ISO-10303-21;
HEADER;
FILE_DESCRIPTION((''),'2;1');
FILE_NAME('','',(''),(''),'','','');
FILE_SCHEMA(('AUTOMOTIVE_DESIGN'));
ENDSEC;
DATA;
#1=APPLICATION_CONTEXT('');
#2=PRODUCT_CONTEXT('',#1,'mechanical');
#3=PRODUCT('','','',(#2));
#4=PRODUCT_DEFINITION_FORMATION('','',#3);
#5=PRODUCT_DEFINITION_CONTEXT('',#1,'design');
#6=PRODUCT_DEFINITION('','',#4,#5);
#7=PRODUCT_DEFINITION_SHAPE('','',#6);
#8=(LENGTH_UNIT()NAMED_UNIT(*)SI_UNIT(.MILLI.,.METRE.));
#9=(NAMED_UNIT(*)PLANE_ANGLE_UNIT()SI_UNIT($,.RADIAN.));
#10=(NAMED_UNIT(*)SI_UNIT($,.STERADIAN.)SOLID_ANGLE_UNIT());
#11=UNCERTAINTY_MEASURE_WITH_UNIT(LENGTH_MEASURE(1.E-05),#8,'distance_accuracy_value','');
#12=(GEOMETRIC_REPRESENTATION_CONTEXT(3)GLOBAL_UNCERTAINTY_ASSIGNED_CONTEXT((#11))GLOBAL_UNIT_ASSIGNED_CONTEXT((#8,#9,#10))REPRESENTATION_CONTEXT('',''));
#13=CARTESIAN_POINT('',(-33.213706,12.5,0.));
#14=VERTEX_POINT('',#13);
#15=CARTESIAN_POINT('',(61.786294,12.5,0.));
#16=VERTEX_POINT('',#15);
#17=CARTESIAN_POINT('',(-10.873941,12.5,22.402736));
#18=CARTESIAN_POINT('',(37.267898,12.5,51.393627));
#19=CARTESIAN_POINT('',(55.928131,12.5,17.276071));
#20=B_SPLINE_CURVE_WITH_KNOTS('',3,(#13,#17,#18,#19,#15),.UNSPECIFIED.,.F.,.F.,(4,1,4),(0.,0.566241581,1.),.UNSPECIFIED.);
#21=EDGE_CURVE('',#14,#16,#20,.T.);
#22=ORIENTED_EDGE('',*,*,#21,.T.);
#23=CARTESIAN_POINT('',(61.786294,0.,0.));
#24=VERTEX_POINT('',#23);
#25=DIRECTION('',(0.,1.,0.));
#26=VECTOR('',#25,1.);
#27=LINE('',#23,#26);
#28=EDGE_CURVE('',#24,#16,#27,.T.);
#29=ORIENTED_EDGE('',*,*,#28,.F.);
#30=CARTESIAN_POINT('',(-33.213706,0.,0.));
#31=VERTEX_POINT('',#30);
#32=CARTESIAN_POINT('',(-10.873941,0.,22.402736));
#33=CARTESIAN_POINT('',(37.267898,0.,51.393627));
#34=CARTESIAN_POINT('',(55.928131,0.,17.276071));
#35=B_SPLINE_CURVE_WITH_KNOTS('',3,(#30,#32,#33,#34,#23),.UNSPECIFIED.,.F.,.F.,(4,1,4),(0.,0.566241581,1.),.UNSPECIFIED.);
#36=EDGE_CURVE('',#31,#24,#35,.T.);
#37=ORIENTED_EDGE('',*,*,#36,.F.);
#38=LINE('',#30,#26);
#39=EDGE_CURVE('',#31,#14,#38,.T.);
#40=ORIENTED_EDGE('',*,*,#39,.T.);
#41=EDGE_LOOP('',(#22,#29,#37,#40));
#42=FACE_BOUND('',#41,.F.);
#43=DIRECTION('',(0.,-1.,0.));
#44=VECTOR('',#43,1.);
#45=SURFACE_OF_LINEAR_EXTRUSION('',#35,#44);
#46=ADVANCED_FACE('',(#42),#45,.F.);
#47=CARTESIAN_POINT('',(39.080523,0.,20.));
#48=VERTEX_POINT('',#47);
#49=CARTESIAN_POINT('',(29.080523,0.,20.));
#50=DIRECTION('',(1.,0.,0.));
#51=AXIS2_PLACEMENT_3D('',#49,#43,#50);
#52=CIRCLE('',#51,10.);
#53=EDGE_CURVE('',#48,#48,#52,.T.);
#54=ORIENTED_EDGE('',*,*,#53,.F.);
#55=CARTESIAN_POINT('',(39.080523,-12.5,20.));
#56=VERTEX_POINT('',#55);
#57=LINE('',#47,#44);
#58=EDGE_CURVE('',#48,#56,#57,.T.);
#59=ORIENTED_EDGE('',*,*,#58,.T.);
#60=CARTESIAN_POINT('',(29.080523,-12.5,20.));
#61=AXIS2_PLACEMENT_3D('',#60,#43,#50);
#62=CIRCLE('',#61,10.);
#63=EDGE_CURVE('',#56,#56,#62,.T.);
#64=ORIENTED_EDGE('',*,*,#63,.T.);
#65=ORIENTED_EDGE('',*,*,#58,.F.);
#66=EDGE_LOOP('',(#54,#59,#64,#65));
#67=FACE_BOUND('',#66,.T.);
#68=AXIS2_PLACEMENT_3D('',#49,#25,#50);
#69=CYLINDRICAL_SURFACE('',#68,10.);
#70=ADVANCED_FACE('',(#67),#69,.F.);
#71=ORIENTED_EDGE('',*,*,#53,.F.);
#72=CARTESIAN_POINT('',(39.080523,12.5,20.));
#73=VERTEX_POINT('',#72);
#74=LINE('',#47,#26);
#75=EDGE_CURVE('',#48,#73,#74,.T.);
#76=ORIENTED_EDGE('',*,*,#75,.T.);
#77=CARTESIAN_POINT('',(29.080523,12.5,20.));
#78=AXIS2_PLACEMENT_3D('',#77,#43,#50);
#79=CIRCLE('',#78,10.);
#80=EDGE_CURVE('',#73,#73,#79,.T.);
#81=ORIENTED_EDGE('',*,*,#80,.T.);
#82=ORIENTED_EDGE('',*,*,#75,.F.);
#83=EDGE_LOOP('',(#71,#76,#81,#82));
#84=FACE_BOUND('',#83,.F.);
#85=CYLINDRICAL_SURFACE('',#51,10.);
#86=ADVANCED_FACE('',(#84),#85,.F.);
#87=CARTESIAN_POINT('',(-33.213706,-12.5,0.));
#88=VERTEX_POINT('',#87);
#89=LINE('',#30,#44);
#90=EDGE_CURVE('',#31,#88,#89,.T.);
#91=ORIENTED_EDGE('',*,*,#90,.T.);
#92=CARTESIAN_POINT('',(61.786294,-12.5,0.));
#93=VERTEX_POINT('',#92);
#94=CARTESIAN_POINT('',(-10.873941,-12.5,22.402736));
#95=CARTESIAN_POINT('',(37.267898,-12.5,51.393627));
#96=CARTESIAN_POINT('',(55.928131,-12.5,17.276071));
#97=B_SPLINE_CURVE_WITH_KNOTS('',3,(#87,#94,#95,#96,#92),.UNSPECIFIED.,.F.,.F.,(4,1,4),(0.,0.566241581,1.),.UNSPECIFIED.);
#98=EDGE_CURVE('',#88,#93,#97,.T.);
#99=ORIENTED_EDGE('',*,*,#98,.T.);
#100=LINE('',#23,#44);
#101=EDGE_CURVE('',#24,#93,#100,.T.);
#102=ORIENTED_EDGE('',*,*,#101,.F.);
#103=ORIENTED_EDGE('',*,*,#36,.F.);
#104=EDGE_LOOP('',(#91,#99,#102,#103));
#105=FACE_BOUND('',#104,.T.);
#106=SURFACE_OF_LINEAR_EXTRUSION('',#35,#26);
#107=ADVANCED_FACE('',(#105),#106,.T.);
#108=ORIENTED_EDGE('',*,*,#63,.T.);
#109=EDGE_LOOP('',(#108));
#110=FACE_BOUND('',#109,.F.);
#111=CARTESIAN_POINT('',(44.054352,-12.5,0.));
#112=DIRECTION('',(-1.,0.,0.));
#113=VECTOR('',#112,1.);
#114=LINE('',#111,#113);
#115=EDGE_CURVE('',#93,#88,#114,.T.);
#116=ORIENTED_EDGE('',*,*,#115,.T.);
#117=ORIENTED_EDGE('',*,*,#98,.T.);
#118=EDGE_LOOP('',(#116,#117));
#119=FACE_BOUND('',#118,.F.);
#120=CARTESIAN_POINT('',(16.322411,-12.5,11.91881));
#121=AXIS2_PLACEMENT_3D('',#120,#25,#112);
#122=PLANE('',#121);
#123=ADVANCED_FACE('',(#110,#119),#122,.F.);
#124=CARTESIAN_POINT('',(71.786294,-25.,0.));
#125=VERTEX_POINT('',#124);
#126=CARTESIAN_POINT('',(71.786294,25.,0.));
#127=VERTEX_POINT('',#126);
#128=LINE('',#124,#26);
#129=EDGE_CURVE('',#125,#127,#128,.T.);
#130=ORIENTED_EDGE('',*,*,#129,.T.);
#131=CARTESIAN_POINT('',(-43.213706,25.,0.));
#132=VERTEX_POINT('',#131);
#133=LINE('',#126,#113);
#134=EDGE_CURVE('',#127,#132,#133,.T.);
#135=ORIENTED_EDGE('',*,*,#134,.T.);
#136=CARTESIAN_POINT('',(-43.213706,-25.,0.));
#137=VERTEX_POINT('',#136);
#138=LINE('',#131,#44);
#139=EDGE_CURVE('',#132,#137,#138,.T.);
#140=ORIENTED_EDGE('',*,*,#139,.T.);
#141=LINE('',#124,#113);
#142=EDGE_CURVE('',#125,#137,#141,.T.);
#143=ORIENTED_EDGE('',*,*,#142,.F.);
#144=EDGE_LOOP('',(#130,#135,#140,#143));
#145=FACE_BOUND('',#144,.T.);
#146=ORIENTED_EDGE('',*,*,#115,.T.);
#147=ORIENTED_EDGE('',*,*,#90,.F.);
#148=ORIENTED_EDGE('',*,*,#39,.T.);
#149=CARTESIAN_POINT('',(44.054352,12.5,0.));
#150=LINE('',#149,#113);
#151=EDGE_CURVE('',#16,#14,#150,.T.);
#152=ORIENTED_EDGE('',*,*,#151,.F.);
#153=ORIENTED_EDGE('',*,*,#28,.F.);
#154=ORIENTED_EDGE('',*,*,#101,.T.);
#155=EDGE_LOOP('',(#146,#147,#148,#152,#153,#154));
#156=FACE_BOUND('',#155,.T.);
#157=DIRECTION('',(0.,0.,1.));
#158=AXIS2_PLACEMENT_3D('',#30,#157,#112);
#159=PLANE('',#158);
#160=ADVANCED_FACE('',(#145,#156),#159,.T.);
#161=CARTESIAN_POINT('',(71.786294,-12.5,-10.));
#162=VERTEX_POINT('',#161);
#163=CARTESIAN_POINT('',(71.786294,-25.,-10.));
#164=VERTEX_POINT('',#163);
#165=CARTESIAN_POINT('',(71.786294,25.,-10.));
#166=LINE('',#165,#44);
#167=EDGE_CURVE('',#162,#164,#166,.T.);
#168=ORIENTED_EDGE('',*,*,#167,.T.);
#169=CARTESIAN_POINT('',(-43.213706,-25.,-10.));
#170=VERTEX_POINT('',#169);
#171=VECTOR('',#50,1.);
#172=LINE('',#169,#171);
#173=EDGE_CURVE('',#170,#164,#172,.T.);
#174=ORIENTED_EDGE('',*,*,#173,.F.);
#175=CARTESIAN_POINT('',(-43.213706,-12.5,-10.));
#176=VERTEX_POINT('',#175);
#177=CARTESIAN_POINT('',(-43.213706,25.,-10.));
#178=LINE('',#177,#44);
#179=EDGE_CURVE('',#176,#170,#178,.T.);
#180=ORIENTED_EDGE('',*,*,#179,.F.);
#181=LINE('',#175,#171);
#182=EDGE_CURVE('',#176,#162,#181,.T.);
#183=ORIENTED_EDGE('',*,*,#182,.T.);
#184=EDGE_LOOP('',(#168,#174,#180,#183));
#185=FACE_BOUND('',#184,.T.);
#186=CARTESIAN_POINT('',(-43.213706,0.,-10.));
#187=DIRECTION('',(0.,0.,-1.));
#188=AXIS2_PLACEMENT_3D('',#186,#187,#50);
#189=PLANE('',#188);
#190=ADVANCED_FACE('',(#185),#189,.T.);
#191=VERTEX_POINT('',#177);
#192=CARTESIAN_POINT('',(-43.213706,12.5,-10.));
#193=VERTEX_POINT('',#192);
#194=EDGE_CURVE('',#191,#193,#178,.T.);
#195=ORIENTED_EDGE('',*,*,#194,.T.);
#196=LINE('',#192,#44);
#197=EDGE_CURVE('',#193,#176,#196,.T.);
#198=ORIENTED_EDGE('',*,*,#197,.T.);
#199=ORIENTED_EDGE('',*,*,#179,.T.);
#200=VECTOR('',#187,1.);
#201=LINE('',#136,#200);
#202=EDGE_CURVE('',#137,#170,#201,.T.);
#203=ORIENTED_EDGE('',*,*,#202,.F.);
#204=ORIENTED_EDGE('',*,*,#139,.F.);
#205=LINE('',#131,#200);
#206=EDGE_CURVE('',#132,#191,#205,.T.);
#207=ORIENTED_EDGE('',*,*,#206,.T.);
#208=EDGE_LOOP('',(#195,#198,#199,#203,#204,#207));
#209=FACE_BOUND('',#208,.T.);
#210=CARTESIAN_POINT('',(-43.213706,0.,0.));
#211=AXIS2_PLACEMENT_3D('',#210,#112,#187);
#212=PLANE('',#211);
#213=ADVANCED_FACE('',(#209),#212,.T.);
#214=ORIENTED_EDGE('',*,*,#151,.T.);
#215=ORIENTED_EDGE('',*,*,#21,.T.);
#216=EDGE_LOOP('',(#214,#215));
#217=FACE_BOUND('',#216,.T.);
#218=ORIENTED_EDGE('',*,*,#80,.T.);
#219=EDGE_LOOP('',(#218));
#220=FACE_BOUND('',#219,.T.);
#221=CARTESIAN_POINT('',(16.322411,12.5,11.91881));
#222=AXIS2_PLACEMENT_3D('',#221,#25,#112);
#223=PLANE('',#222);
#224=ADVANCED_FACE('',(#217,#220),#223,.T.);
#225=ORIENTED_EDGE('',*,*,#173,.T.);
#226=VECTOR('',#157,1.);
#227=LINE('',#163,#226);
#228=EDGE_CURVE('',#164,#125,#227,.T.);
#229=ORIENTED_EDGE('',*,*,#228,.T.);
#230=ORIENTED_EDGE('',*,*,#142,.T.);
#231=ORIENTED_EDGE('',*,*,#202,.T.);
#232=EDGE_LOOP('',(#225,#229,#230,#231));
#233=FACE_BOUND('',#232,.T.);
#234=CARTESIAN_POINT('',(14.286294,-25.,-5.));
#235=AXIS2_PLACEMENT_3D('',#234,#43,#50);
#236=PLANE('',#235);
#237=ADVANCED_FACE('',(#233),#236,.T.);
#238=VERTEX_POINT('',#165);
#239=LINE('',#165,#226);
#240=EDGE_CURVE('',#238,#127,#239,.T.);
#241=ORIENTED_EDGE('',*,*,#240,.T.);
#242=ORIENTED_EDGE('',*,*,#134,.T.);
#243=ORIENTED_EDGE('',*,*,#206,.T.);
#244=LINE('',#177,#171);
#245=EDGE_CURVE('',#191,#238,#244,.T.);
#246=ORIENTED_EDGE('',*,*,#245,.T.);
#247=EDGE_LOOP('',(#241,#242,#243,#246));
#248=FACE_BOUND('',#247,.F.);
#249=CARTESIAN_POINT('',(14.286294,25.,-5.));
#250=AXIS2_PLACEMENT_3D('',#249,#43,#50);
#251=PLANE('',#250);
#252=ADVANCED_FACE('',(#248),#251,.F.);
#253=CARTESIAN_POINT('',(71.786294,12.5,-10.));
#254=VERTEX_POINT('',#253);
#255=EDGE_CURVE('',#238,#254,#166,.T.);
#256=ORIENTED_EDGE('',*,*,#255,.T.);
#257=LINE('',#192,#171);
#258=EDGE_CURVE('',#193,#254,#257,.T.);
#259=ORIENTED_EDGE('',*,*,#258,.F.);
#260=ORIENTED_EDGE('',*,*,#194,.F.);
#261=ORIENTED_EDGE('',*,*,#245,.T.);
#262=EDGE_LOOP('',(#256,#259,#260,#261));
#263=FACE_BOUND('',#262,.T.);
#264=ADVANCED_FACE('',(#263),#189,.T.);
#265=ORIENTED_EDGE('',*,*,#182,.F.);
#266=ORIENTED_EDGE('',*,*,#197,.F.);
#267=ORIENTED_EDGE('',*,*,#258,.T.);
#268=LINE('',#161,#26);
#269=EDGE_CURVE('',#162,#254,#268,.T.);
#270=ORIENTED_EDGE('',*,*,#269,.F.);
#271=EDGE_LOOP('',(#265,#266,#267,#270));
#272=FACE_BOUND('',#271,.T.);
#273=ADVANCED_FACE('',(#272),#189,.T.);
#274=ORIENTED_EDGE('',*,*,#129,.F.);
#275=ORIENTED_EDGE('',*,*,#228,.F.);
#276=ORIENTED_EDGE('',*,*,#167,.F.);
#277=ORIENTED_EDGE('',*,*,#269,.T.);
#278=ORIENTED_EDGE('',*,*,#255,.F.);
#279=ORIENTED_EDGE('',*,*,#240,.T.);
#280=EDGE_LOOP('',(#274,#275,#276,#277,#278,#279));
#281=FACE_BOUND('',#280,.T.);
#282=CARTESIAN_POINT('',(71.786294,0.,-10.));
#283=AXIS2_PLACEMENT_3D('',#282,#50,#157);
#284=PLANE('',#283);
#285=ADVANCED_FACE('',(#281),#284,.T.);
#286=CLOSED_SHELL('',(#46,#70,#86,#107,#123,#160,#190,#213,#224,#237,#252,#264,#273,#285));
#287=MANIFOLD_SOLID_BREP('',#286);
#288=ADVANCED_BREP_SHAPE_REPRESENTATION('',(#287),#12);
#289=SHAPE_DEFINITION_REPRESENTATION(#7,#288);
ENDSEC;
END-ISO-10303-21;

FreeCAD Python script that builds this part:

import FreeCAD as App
import Part
import Sketcher


def add_polygon(sketch, points):
    """Adds a closed chain of lines whose ends are joined by coincident constraints."""
    first, n = sketch.GeometryCount, len(points)
    for a, b in zip(points, points[1:] + points[:1]):
        sketch.addGeometry(Part.LineSegment(App.Vector(*a, 0), App.Vector(*b, 0)), False)
    for i in range(n):
        sketch.addConstraint(Sketcher.Constraint("Coincident", first + i, 2, first + (i + 1) % n, 1))

doc = App.newDocument("Part")
body = doc.addObject("PartDesign::Body", "Body")

sketch1 = doc.addObject("Sketcher::SketchObject", "Sketch")
body.addObject(sketch1)
sketch1.AttachmentSupport = (doc.XZ_Plane, [""])
sketch1.MapMode = "FlatFace"
add_polygon(sketch1, [(-43, 0), (-43, -10), (72, -10), (72, 0)])
sketch1.addConstraint([
    Sketcher.Constraint("Vertical", 0),
    Sketcher.Constraint("Horizontal", 1),
    Sketcher.Constraint("Vertical", 2),
    Sketcher.Constraint("Horizontal", 3),
    Sketcher.Constraint("PointOnObject", 2, 2, -1),
    Sketcher.Constraint("DistanceX", 1, 1, 1, 2, 115.0),
    Sketcher.Constraint("DistanceY", 0, 2, 0, 1, 10.0),
    Sketcher.Constraint("DistanceX", 0, 2, -1, 1, 43.213706),
])
pad1 = doc.addObject("PartDesign::Pad", "Pad")
body.addObject(pad1)
pad1.Profile = sketch1
pad1.Length = 50
pad1.Midplane = True

sketch2 = doc.addObject("Sketcher::SketchObject", "Sketch001")
body.addObject(sketch2)
sketch2.AttachmentSupport = (doc.XZ_Plane, [""])
sketch2.MapMode = "FlatFace"
sketch2.addGeometry([
    Part.BSplineCurve([App.Vector(-33.213706, 0, 0), App.Vector(-10.873941, 22.402736, 0), App.Vector(37.267898, 51.393627, 0), App.Vector(55.928131, 17.276071, 0), App.Vector(61.786294, 0, 0)], [4, 1, 4], [0, 0.566241581, 1], False, 3, [1, 1, 1, 1, 1], False),
    Part.LineSegment(App.Vector(-33.213706, 0, 0), App.Vector(-43.213706, 0, 0)),
    Part.LineSegment(App.Vector(-43.213706, 0, 0), App.Vector(-43.213706, -10, 0)),
    Part.LineSegment(App.Vector(-43.213706, -10, 0), App.Vector(71.786294, -10, 0)),
    Part.LineSegment(App.Vector(71.786294, -10, 0), App.Vector(71.786294, 0, 0)),
    Part.LineSegment(App.Vector(71.786294, 0, 0), App.Vector(61.786294, 0, 0)),
    Part.Circle(App.Vector(29.080523, 20, 0), App.Vector(0, 0, 1), 10),
], False)
sketch2.addConstraint([
    Sketcher.Constraint("Block", 0),
    Sketcher.Constraint("Coincident", 0, 1, 1, 1),
    Sketcher.Constraint("Coincident", 1, 2, 2, 1),
    Sketcher.Constraint("Coincident", 2, 2, 3, 1),
    Sketcher.Constraint("Coincident", 3, 2, 4, 1),
    Sketcher.Constraint("Coincident", 4, 2, 5, 1),
    Sketcher.Constraint("Coincident", 5, 2, 0, 2),
    Sketcher.Constraint("Horizontal", 1),
    Sketcher.Constraint("Vertical", 2),
    Sketcher.Constraint("Horizontal", 3),
    Sketcher.Constraint("Vertical", 4),
    Sketcher.Constraint("Horizontal", 5),
    Sketcher.Constraint("Equal", 1, 5),
    Sketcher.Constraint("Equal", 5, 2),
    Sketcher.Constraint("Diameter", 6, 20.0),
    Sketcher.Constraint("DistanceX", 1, 2, 1, 1, 10.0),
    Sketcher.Constraint("DistanceY", -1, 1, 6, 3, 20.0),
    Sketcher.Constraint("DistanceX", 1, 2, 6, 3, 72.294228),
])
pad2 = doc.addObject("PartDesign::Pad", "Pad001")
body.addObject(pad2)
pad2.Profile = sketch2
pad2.Length = 25
pad2.Midplane = True

doc.recompute()
